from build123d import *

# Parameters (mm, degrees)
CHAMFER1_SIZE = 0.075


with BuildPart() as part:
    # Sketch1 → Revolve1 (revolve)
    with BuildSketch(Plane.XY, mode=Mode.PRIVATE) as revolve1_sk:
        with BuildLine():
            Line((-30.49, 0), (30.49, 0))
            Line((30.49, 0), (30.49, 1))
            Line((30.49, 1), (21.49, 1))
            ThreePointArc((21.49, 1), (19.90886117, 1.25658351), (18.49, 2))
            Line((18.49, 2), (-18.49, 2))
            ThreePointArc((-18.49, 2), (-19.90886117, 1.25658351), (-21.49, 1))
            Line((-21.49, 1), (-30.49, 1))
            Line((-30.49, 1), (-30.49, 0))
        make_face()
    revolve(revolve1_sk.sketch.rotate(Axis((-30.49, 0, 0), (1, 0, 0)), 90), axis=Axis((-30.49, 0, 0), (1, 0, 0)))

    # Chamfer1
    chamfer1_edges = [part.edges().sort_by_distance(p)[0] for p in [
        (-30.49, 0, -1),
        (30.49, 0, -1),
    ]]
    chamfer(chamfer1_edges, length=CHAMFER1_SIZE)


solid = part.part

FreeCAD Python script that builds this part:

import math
import FreeCAD as App
import Part
import Sketcher

V = App.Vector


def edges_at(feature, points):
    """Names of the edges that pass closest to the given points."""
    edges = feature.Shape.Edges
    near = lambda p: min(range(len(edges)), key=lambda i: edges[i].distToShape(Part.Vertex(*p))[0])
    return sorted({f"Edge{near(p) + 1}" for p in points})

doc = App.newDocument("Part")
params = doc.addObject("Spreadsheet::Sheet", "Params")
for row, (alias, value) in enumerate([
    ("sketch1_radius", "5 mm"),
    ("sketch1_width", "9 mm"),
    ("sketch1_height", "1 mm"),
    ("sketch1_width2", "60.98 mm"),
    ("revolution_angle", "360 deg"),
    ("chamfer_size", "0.075 mm"),
], start=1):
    params.set(f"A{row}", alias)
    params.set(f"B{row}", "=" + value)
    params.setAlias(f"B{row}", alias)

body = doc.addObject("PartDesign::Body", "Body")

sketch1 = doc.addObject("Sketcher::SketchObject", "Sketch")
body.addObject(sketch1)
sketch1.AttachmentSupport = (doc.XY_Plane, [""])
sketch1.MapMode = "FlatFace"
sketch1.addGeometry([
    Part.LineSegment(V(-30.5, 0, 0), V(30.5, 0, 0)),
    Part.LineSegment(V(30.5, 0, 0), V(30.5, 1, 0)),
    Part.LineSegment(V(30.5, 1, 0), V(21.5, 1, 0)),
    Part.ArcOfCircle(Part.Circle(V(21.5, 6, 0), V(0, 0, 1), 5), math.radians(-127), math.radians(-90)),
    Part.LineSegment(V(18.5, 2, 0), V(-18.5, 2, 0)),
    Part.ArcOfCircle(Part.Circle(V(-21.5, 6, 0), V(0, 0, 1), 5), math.radians(-90), math.radians(-53)),
    Part.LineSegment(V(-21.5, 1, 0), V(-30.5, 1, 0)),
    Part.LineSegment(V(-30.5, 1, 0), V(-30.5, 0, 0)),
], False)
sketch1.addConstraint([
    Sketcher.Constraint("Coincident", 0, 2, 1, 1),
    Sketcher.Constraint("Coincident", 1, 2, 2, 1),
    Sketcher.Constraint("Tangent", 2, 2, 3, 2),
    Sketcher.Constraint("Coincident", 3, 1, 4, 1),
    Sketcher.Constraint("Coincident", 4, 2, 5, 2),
    Sketcher.Constraint("Tangent", 5, 1, 6, 1),
    Sketcher.Constraint("Coincident", 6, 2, 7, 1),
    Sketcher.Constraint("Coincident", 7, 2, 0, 1),
    Sketcher.Constraint("Horizontal", 0),
    Sketcher.Constraint("Vertical", 1),
    Sketcher.Constraint("Horizontal", 2),
    Sketcher.Constraint("Horizontal", 4),
    Sketcher.Constraint("Horizontal", 6),
    Sketcher.Constraint("Vertical", 7),
    Sketcher.Constraint("Equal", 3, 5),
    Sketcher.Constraint("Symmetric", 0, 2, 7, 2, -1, 1),
    Sketcher.Constraint("Symmetric", 3, 3, 5, 3, -2),
    Sketcher.Constraint("Radius", 3, 5.0),
    Sketcher.Constraint("DistanceX", 2, 2, 2, 1, 9.0),
    Sketcher.Constraint("DistanceY", 1, 1, 1, 2, 1.0),
    Sketcher.Constraint("DistanceY", -1, 1, 3, 1, 2.0),
    Sketcher.Constraint("DistanceX", 0, 1, 0, 2, 60.98),
])
sketch1.setExpression("Constraints[17]", "Params.sketch1_radius")
sketch1.setExpression("Constraints[18]", "Params.sketch1_width")
sketch1.setExpression("Constraints[19]", "Params.sketch1_height")
sketch1.setExpression("Constraints[21]", "Params.sketch1_width2")
revolution = doc.addObject("PartDesign::Revolution", "Revolution")
body.addObject(revolution)
revolution.Profile = sketch1
revolution.ReferenceAxis = (sketch1, ["H_Axis"])
revolution.setExpression("Angle", "Params.revolution_angle")
doc.recompute()

chamfer = doc.addObject("PartDesign::Chamfer", "Chamfer")
body.addObject(chamfer)
chamfer.Base = (revolution, edges_at(revolution, [(-30.49, 0, -1), (30.49, 0, -1)]))
chamfer.setExpression("Size", "Params.chamfer_size")

doc.recompute()
